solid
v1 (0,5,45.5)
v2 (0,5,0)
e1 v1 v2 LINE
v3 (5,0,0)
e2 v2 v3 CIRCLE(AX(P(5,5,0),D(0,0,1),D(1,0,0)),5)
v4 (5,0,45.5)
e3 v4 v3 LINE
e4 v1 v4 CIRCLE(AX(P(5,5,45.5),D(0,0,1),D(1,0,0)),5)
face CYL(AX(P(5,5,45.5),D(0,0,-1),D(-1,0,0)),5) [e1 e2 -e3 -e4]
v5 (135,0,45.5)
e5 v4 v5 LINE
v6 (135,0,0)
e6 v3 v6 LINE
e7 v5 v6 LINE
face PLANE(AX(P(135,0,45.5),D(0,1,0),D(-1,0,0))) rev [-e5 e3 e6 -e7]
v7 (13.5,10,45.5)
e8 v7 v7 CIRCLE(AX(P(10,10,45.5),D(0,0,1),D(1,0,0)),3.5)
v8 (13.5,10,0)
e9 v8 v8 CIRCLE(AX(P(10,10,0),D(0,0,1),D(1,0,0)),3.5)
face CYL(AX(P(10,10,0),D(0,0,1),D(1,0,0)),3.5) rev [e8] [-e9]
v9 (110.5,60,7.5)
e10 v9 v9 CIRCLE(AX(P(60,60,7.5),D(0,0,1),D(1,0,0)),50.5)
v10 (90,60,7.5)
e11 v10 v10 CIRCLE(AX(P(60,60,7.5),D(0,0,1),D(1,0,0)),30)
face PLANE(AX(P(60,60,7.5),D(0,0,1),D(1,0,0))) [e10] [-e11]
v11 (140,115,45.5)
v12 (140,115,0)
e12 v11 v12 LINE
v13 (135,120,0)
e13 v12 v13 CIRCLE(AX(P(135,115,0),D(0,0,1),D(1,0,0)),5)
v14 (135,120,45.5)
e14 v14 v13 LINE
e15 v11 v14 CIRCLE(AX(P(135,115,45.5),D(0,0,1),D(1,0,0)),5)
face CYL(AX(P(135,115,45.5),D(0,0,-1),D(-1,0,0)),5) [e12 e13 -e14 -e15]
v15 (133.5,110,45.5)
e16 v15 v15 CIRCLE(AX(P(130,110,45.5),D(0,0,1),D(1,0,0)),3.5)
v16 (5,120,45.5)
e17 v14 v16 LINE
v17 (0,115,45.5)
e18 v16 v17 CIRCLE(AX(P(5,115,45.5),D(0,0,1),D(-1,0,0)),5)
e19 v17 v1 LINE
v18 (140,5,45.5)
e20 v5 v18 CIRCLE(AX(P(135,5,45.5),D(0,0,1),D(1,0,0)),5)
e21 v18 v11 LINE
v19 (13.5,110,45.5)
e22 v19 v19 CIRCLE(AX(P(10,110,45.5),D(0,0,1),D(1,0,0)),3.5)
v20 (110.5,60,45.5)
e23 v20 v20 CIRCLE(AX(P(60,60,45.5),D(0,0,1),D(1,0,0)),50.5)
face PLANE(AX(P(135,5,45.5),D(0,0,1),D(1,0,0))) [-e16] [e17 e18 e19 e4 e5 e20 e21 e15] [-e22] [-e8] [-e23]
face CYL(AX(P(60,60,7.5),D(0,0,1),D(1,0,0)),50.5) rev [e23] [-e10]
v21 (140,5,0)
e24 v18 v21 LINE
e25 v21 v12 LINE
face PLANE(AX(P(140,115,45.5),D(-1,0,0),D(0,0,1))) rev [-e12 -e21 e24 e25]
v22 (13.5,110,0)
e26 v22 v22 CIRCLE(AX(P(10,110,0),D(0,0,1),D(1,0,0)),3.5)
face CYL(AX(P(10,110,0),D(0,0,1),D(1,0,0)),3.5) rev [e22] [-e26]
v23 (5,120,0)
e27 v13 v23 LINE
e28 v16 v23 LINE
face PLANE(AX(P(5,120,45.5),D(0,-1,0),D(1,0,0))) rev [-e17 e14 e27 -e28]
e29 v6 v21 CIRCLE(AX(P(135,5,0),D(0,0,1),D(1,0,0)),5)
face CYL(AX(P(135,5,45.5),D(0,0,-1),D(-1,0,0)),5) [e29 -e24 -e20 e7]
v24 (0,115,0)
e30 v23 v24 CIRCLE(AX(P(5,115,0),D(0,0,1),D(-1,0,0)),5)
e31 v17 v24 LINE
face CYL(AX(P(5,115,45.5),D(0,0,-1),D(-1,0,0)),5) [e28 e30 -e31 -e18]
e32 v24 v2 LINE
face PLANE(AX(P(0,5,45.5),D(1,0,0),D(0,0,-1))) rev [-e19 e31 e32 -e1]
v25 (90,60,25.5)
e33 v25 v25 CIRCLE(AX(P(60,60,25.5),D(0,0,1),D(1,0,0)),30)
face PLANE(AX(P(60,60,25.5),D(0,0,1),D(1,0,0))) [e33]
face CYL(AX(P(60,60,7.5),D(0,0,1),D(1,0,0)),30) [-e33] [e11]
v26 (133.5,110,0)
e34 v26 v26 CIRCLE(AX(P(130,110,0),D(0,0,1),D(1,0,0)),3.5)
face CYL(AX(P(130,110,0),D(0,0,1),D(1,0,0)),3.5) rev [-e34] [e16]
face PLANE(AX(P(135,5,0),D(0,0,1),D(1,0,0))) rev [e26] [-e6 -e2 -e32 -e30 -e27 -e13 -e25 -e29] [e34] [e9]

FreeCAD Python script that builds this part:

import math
import FreeCAD as App
import Part
import Sketcher

doc = App.newDocument("Part")
body = doc.addObject("PartDesign::Body", "Body")

# Sketch on XY plane
sketch1 = doc.addObject("Sketcher::SketchObject", "Sketch")
body.addObject(sketch1)
sketch1.AttachmentSupport = (doc.XY_Plane, [""])
sketch1.MapMode = "FlatFace"
sketch1.addGeometry([
    Part.LineSegment(App.Vector(0, 115, 0), App.Vector(0, 5, 0)),  # 0
    Part.ArcOfCircle(Part.Circle(App.Vector(5, 5, 0), App.Vector(0, 0, 1), 5), math.radians(180), math.radians(270)),  # 1
    Part.LineSegment(App.Vector(5, 0, 0), App.Vector(135, 0, 0)),  # 2
    Part.ArcOfCircle(Part.Circle(App.Vector(135, 5, 0), App.Vector(0, 0, 1), 5), math.radians(-90), math.radians(0)),  # 3
    Part.LineSegment(App.Vector(140, 5, 0), App.Vector(140, 115, 0)),  # 4
    Part.ArcOfCircle(Part.Circle(App.Vector(135, 115, 0), App.Vector(0, 0, 1), 5), math.radians(0), math.radians(90)),  # 5
    Part.LineSegment(App.Vector(135, 120, 0), App.Vector(5, 120, 0)),  # 6
    Part.ArcOfCircle(Part.Circle(App.Vector(5, 115, 0), App.Vector(0, 0, 1), 5), math.radians(90), math.radians(180)),  # 7
], False)
sketch1.addConstraint([
    Sketcher.Constraint("Tangent", 0, 2, 1, 1),
    Sketcher.Constraint("Tangent", 1, 2, 2, 1),
    Sketcher.Constraint("Tangent", 2, 2, 3, 1),
    Sketcher.Constraint("Tangent", 3, 2, 4, 1),
    Sketcher.Constraint("Tangent", 4, 2, 5, 1),
    Sketcher.Constraint("Tangent", 5, 2, 6, 1),
    Sketcher.Constraint("Tangent", 6, 2, 7, 1),
    Sketcher.Constraint("Tangent", 7, 2, 0, 1),
    Sketcher.Constraint("Vertical", 0),
    Sketcher.Constraint("Horizontal", 2),
    Sketcher.Constraint("Vertical", 4),
    Sketcher.Constraint("Horizontal", 6),
    Sketcher.Constraint("Equal", 1, 3),
    Sketcher.Constraint("Equal", 3, 5),
    Sketcher.Constraint("Equal", 5, 7),
    Sketcher.Constraint("PointOnObject", 0, 2, -2),
    Sketcher.Constraint("PointOnObject", 1, 2, -1),
    Sketcher.Constraint("Radius", 1, 5.0),
    Sketcher.Constraint("DistanceX", 2, 1, 2, 2, 130.0),
    Sketcher.Constraint("DistanceY", 0, 2, 0, 1, 110.0),
])
pad1 = doc.addObject("PartDesign::Pad", "Pad")
body.addObject(pad1)
pad1.Profile = sketch1
pad1.Length = 45.5

# Sketch on XY plane
sketch2 = doc.addObject("Sketcher::SketchObject", "Sketch001")
body.addObject(sketch2)
sketch2.AttachmentSupport = (doc.XY_Plane, [""])
sketch2.MapMode = "FlatFace"
sketch2.AttachmentOffset = App.Placement(App.Vector(0, 0, 45.5), App.Rotation())
sketch2.addGeometry([
    Part.Circle(App.Vector(10, 110, 0), App.Vector(0, 0, 1), 3.5),
    Part.Circle(App.Vector(130, 110, 0), App.Vector(0, 0, 1), 3.5),
    Part.Circle(App.Vector(10, 10, 0), App.Vector(0, 0, 1), 3.5),
], False)
sketch2.addConstraint([
    Sketcher.Constraint("Equal", 0, 1),
    Sketcher.Constraint("Equal", 1, 2),
    Sketcher.Constraint("Horizontal", 0, 3, 1, 3),
    Sketcher.Constraint("Vertical", 0, 3, 2, 3),
    Sketcher.Constraint("Diameter", 0, 7.0),
    Sketcher.Constraint("DistanceX", -1, 1, 0, 3, 10.0),
    Sketcher.Constraint("DistanceY", -1, 1, 0, 3, 110.0),
    Sketcher.Constraint("DistanceX", -1, 1, 1, 3, 130.0),
    Sketcher.Constraint("DistanceY", -1, 1, 2, 3, 10.0),
])
pocket1 = doc.addObject("PartDesign::Pocket", "Pocket")
body.addObject(pocket1)
pocket1.Profile = sketch2
pocket1.Type = "ThroughAll"

# Sketch on XY plane
sketch3 = doc.addObject("Sketcher::SketchObject", "Sketch002")
body.addObject(sketch3)
sketch3.AttachmentSupport = (doc.XY_Plane, [""])
sketch3.MapMode = "FlatFace"
sketch3.AttachmentOffset = App.Placement(App.Vector(0, 0, 45.5), App.Rotation())
sketch3.addGeometry([
    Part.Circle(App.Vector(60, 60, 0), App.Vector(0, 0, 1), 50.5),
    Part.Circle(App.Vector(60, 60, 0), App.Vector(0, 0, 1), 30),
], False)
sketch3.addConstraint([
    Sketcher.Constraint("Coincident", 1, 3, 0, 3),
    Sketcher.Constraint("Diameter", 0, 101.0),
    Sketcher.Constraint("Diameter", 1, 60.0),
    Sketcher.Constraint("DistanceX", -1, 1, 0, 3, 60.0),
    Sketcher.Constraint("DistanceY", -1, 1, 0, 3, 60.0),
])
pocket2 = doc.addObject("PartDesign::Pocket", "Pocket001")
body.addObject(pocket2)
pocket2.Profile = sketch3
pocket2.Length = 38

# Sketch on XY plane
sketch4 = doc.addObject("Sketcher::SketchObject", "Sketch003")
body.addObject(sketch4)
sketch4.AttachmentSupport = (doc.XY_Plane, [""])
sketch4.MapMode = "FlatFace"
sketch4.AttachmentOffset = App.Placement(App.Vector(0, 0, 45.5), App.Rotation())
sketch4.addGeometry(Part.Circle(App.Vector(60, 60, 0), App.Vector(0, 0, 1), 30), False)
sketch4.addConstraint([
    Sketcher.Constraint("Diameter", 0, 60.0),
    Sketcher.Constraint("DistanceX", -1, 1, 0, 3, 60.0),
    Sketcher.Constraint("DistanceY", -1, 1, 0, 3, 60.0),
])
pocket3 = doc.addObject("PartDesign::Pocket", "Pocket002")
body.addObject(pocket3)
pocket3.Profile = sketch4
pocket3.Length = 20

doc.recompute()
